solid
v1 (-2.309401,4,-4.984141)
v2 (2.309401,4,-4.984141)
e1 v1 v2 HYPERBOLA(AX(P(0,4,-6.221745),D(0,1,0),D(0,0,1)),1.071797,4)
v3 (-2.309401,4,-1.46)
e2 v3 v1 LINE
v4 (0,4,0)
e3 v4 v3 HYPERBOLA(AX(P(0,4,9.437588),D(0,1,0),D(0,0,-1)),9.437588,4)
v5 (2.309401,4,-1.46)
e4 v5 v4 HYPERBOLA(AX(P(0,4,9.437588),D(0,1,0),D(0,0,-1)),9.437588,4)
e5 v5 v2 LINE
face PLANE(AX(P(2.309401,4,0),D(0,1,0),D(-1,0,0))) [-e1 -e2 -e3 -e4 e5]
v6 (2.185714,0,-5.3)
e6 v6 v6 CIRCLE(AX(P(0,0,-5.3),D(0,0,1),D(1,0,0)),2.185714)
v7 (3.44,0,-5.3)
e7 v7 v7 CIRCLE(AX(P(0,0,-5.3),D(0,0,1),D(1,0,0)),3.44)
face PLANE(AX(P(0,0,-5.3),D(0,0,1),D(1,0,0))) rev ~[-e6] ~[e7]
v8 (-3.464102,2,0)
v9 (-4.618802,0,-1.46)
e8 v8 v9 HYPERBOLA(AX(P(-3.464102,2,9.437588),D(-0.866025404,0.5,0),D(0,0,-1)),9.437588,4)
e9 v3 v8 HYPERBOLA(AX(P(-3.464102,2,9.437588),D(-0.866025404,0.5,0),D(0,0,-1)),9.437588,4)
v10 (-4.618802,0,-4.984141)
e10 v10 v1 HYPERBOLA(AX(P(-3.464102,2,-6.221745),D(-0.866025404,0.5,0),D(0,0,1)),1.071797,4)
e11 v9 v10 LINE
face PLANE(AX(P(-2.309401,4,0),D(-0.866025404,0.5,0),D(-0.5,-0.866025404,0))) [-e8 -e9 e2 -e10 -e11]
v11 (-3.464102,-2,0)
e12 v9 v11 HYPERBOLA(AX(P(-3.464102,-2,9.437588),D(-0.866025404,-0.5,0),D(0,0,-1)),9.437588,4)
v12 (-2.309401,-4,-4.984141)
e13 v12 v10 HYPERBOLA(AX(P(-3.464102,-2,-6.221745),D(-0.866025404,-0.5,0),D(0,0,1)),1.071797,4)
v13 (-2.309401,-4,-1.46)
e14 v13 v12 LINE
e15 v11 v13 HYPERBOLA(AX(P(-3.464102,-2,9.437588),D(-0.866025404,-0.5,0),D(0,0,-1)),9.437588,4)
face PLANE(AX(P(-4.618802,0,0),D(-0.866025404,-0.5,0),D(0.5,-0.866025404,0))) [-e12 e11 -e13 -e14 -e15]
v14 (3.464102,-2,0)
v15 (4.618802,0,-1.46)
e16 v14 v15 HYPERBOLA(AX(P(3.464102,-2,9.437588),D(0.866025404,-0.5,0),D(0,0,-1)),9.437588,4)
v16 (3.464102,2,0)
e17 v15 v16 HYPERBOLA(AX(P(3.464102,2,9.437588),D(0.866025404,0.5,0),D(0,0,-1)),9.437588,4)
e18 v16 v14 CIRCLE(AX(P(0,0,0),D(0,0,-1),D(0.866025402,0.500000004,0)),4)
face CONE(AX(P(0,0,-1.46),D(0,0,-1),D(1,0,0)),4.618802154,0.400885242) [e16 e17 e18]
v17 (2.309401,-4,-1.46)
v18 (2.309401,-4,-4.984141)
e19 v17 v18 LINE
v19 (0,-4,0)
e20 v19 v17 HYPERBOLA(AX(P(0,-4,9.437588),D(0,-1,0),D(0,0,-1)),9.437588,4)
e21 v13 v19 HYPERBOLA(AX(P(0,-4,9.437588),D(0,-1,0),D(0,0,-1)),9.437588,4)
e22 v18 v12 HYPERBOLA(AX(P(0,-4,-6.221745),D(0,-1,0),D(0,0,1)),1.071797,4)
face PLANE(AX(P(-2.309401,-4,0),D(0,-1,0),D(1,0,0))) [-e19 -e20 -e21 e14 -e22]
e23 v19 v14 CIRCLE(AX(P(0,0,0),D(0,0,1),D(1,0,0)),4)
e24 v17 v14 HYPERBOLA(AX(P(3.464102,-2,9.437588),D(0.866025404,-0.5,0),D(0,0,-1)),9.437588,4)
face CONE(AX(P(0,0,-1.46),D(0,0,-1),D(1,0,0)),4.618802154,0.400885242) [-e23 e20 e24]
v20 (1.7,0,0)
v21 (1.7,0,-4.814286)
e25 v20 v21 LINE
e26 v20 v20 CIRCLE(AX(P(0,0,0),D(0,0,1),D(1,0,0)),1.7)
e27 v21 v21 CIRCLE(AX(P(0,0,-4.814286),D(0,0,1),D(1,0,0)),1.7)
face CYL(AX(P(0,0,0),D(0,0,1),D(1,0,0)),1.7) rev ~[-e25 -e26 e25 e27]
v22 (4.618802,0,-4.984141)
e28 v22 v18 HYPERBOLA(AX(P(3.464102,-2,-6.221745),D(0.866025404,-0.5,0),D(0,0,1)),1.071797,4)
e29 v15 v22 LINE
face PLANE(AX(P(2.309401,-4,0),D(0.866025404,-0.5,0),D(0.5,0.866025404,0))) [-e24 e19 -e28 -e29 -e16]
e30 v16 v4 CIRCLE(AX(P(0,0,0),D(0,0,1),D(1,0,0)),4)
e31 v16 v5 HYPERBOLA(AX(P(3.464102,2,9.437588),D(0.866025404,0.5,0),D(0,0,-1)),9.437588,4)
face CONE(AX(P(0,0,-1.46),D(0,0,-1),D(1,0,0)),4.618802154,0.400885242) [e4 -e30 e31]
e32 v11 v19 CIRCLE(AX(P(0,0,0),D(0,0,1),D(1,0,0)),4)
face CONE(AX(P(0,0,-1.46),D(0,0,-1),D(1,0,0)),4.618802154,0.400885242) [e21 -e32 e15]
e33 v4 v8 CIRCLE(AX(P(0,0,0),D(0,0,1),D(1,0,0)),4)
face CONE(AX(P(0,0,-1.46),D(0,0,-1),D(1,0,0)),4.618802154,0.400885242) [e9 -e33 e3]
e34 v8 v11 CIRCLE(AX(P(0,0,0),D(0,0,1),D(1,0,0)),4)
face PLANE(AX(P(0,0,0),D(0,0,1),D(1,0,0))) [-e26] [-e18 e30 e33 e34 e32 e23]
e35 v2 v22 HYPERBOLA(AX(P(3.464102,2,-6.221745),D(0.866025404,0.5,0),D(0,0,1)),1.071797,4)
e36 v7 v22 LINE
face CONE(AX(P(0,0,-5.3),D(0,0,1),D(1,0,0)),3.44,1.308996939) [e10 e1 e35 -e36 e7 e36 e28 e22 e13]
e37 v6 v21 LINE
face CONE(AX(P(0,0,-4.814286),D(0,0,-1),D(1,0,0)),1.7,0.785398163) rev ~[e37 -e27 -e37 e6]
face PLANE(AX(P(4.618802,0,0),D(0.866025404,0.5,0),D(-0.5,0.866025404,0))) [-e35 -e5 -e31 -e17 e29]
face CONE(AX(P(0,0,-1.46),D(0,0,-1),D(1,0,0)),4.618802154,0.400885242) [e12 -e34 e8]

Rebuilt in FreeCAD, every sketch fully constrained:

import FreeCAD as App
import Part
import Sketcher

V = App.Vector
Q = App.Units.Quantity


def edges_at(feature, points):
    """Names of the edges that pass closest to the given points."""
    edges = feature.Shape.Edges
    near = lambda p: min(range(len(edges)), key=lambda i: edges[i].distToShape(Part.Vertex(*p))[0])
    return sorted({f"Edge{near(p) + 1}" for p in points})


def add_polygon(sketch, points):
    """Adds a closed chain of lines whose ends are joined by coincident constraints."""
    first, n = sketch.GeometryCount, len(points)
    for a, b in zip(points, points[1:] + points[:1]):
        sketch.addGeometry(Part.LineSegment(App.Vector(*a, 0), App.Vector(*b, 0)), False)
    for i in range(n):
        sketch.addConstraint(Sketcher.Constraint("Coincident", first + i, 2, first + (i + 1) % n, 1))

doc = App.newDocument("Part")
body = doc.addObject("PartDesign::Body", "Body")

# Sketch on XY plane
sketch1 = body.newObject("Sketcher::SketchObject", "Sketch")
sketch1.AttachmentSupport = (doc.getObject("XY_Plane"), [""])
sketch1.MapMode = "FlatFace"
add_polygon(sketch1, [(2.309401, -4), (4.618802, 0), (2.309401, 4), (-2.309401, 4), (-4.618802, 0), (-2.309401, -4)])  # lines 0-5
sketch1.addConstraint([
    Sketcher.Constraint("Horizontal", 2),
    Sketcher.Constraint("Horizontal", 5),
    Sketcher.Constraint("Symmetric", 0, 2, 3, 2, -1, 1),
    Sketcher.Constraint("Symmetric", 1, 2, 4, 2, -1, 1),
    Sketcher.Constraint("PointOnObject", 0, 2, -1),
    Sketcher.Constraint("Parallel", 0, 3),
    Sketcher.Constraint("Vertical", 2, 2, 4, 2),
    Sketcher.Constraint("Angle", 0, Q("60 deg")),
    Sketcher.Constraint("DistanceY", -1, 1, 1, 2, 4.0),
    Sketcher.Constraint("DistanceX", -1, 1, 1, 2, 2.309401),
])
pad1 = body.newObject("PartDesign::Pad", "Pad")
pad1.Profile = sketch1
pad1.Length = 5.3
pad1.Reversed = True

# Sketch on XZ plane
sketch2 = body.newObject("Sketcher::SketchObject", "Sketch001")
sketch2.AttachmentSupport = (doc.getObject("XZ_Plane"), [""])
sketch2.MapMode = "FlatFace"
add_polygon(sketch2, [(4.618802, -5.3), (4.618802, -4.984141), (3.44, -5.3)])  # lines 0-2
add_polygon(sketch2, [(4.618802, -1.46), (4.618802, 0), (4, 0)])  # lines 3-5
sketch2.addConstraint([
    Sketcher.Constraint("Vertical", 0),
    Sketcher.Constraint("Horizontal", 2),
    Sketcher.Constraint("Vertical", 3),
    Sketcher.Constraint("Horizontal", 4),
    Sketcher.Constraint("PointOnObject", 3, 2, -1),
    Sketcher.Constraint("Vertical", 2, 2, 3, 2),
    Sketcher.Constraint("Angle", 1, Q("-165 deg")),
    Sketcher.Constraint("DistanceX", -1, 1, 4, 2, 4.0),
    Sketcher.Constraint("DistanceY", 3, 1, 3, 2, 1.46),
    Sketcher.Constraint("DistanceY", 1, 2, -1, 1, 5.3),
    Sketcher.Constraint("DistanceX", -1, 1, 1, 2, 3.44),
    Sketcher.Constraint("DistanceY", 0, 1, 0, 2, 0.315859),
])
groove = body.newObject("PartDesign::Groove", "Groove")
groove.Profile = sketch2
groove.ReferenceAxis = (sketch2, ["V_Axis"])
groove.Angle = 360

# Sketch on XY plane
sketch3 = body.newObject("Sketcher::SketchObject", "Sketch002")
sketch3.AttachmentSupport = (doc.getObject("XY_Plane"), [""])
sketch3.MapMode = "FlatFace"
sketch3.addGeometry(Part.Circle(V(0, 0, 0), V(0, 0, 1), 1.7), False)
sketch3.addConstraint([
    Sketcher.Constraint("Coincident", 0, 3, -1, 1),
    Sketcher.Constraint("Diameter", 0, 3.4),
])
pocket1 = body.newObject("PartDesign::Pocket", "Pocket")
pocket1.Profile = sketch3
pocket1.Type = "ThroughAll"
doc.recompute()

chamfer = body.newObject("PartDesign::Chamfer", "Chamfer")
chamfer.Base = (pocket1, edges_at(pocket1, [(-1.7, 0, -5.3)]))
chamfer.Size = 0.485714

doc.recompute()
